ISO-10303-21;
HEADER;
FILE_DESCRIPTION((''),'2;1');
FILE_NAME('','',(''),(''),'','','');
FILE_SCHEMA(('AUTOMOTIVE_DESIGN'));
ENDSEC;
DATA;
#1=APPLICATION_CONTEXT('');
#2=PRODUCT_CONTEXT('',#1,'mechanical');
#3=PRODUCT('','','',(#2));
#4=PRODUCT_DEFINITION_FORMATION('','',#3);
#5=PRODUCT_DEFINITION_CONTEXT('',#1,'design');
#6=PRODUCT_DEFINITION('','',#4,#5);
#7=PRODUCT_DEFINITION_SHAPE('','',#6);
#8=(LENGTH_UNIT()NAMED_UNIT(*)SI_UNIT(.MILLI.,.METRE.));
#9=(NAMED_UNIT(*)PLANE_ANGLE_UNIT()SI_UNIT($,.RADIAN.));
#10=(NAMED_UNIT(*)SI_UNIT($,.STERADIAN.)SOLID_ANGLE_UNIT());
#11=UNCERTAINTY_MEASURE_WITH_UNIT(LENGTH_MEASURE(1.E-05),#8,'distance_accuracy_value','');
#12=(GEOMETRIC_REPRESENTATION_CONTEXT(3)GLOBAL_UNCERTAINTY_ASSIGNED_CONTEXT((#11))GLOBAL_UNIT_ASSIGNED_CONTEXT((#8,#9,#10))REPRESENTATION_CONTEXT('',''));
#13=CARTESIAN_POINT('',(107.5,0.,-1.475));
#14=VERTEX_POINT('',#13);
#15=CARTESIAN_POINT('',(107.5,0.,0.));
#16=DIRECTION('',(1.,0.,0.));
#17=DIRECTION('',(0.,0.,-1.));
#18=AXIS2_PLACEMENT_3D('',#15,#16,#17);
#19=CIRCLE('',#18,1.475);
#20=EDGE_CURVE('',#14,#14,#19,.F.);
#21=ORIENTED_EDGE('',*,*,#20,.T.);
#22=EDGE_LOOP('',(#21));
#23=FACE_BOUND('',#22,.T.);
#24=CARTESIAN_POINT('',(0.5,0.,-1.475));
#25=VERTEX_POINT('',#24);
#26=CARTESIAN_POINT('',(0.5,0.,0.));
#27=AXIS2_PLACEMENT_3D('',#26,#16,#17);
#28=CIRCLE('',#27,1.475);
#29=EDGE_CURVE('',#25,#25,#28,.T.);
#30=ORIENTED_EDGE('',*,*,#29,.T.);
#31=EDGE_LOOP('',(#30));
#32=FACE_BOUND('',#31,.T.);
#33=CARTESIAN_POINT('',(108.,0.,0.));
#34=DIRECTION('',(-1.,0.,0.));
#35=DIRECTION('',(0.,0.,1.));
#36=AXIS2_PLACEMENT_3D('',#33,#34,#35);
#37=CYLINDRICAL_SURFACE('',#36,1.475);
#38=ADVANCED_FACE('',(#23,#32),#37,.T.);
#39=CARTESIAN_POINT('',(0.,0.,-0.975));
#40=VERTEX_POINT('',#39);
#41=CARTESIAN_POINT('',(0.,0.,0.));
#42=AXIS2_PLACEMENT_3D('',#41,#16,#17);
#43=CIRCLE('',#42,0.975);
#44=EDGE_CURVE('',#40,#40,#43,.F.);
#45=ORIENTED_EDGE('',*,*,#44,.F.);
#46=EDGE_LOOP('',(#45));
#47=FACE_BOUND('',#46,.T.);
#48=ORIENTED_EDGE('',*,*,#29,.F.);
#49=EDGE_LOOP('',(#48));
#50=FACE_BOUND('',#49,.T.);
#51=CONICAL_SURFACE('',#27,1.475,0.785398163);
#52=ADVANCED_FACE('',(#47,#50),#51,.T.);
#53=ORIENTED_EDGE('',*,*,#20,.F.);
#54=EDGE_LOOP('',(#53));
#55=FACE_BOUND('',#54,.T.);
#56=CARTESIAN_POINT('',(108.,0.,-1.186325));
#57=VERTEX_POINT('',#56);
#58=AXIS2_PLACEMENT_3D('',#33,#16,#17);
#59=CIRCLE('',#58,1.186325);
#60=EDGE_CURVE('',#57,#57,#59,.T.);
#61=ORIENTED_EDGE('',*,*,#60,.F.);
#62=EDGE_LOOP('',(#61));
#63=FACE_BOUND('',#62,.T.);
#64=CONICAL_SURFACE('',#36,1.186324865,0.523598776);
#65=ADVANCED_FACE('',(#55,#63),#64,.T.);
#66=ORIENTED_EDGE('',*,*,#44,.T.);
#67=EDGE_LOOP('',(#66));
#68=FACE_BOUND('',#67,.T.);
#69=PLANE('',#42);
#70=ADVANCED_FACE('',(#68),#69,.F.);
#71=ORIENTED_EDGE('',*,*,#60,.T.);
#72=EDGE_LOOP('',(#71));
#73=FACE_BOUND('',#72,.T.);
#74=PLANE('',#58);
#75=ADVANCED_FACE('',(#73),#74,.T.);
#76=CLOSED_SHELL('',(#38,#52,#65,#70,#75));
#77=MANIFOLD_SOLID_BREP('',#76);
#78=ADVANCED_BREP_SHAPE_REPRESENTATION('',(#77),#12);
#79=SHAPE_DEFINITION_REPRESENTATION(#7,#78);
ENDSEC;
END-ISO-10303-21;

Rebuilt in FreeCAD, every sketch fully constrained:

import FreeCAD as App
import Part
import Sketcher

V = App.Vector


def edges_at(feature, points):
    """Names of the edges that pass closest to the given points."""
    edges = feature.Shape.Edges
    near = lambda p: min(range(len(edges)), key=lambda i: edges[i].distToShape(Part.Vertex(*p))[0])
    return sorted({f"Edge{near(p) + 1}" for p in points})

doc = App.newDocument("Part")
body = doc.addObject("PartDesign::Body", "Body")

sketch1 = body.newObject("Sketcher::SketchObject", "Sketch")
sketch1.AttachmentSupport = (doc.getObject("YZ_Plane"), [""])
sketch1.MapMode = "FlatFace"
sketch1.addGeometry(Part.Circle(V(0, 0, 0), V(0, 0, 1), 1.5), False)
sketch1.addConstraint([
    Sketcher.Constraint("Coincident", 0, 3, -1, 1),
    Sketcher.Constraint("Diameter", 0, 2.95),
])
pad1 = body.newObject("PartDesign::Pad", "Pad")
pad1.Profile = sketch1
pad1.Length = 108
doc.recompute()

chamfer = body.newObject("PartDesign::Chamfer", "Chamfer")
chamfer.Base = (pad1, edges_at(pad1, [(108, 0, 1.475)]))
chamfer.ChamferType = "Two distances"
chamfer.Size = 0.5
chamfer.Size2 = 0.288675
doc.recompute()

chamfer2 = body.newObject("PartDesign::Chamfer", "Chamfer001")
chamfer2.Base = (chamfer, edges_at(chamfer, [(0, 0, 1.475)]))
chamfer2.Size = 0.5

doc.recompute()
